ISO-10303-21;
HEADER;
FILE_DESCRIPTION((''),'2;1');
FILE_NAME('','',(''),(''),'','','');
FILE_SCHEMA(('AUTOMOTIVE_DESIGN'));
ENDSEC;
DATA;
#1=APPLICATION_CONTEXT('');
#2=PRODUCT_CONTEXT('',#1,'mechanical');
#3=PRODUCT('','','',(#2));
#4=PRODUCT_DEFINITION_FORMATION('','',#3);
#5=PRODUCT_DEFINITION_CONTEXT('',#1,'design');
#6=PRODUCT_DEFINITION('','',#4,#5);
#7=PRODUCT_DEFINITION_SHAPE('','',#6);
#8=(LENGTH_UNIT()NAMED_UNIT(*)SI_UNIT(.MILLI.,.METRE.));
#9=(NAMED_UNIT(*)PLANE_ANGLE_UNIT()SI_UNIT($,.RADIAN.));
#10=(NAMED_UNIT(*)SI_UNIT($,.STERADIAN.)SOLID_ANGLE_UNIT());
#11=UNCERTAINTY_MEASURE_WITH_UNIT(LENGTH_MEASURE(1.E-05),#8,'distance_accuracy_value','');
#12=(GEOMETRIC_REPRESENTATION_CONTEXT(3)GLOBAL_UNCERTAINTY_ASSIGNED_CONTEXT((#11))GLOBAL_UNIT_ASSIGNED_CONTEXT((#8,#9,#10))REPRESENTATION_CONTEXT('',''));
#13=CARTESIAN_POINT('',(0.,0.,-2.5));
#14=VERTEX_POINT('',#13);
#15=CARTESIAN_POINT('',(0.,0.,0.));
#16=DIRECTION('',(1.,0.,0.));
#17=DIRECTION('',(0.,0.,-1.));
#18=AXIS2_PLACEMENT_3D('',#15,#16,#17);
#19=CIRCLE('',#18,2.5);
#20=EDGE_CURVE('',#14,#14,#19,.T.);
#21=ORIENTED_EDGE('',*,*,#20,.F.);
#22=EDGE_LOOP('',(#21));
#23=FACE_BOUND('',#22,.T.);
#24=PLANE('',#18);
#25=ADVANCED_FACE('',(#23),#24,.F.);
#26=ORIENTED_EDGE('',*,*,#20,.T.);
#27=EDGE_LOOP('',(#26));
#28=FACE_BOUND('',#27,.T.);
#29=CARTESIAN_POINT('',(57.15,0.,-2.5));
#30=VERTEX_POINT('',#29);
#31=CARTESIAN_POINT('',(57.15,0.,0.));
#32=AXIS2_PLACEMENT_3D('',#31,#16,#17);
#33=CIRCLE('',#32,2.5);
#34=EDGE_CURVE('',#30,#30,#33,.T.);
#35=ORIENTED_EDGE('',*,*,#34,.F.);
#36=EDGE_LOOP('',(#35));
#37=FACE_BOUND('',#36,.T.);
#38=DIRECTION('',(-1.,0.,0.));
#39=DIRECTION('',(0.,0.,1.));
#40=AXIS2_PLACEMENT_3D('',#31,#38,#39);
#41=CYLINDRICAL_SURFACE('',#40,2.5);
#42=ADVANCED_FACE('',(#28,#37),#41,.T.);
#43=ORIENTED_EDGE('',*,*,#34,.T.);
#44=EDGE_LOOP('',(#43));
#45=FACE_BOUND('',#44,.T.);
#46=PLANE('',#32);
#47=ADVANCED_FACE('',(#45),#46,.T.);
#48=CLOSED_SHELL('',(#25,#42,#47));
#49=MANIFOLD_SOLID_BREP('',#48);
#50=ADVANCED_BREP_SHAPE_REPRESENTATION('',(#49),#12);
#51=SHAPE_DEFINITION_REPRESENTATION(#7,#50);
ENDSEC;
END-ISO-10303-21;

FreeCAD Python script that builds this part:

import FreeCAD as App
import Part
import Sketcher
Q = App.Units.Quantity

doc = App.newDocument("Part")
body = doc.addObject("PartDesign::Body", "Body")

# Sketch on YZ plane
sketch1 = body.newObject("Sketcher::SketchObject", "Sketch")
sketch1.AttachmentSupport = (doc.getObject("YZ_Plane"), [""])
sketch1.MapMode = "FlatFace"
sketch1.addGeometry(Part.Circle(App.Vector(0, 0, 0), App.Vector(0, 0, 1), 2.5), False)
sketch1.addConstraint(Sketcher.Constraint("Coincident", 0, 3, -1, 1))
sketch1.addConstraint(Sketcher.Constraint("Diameter", 0, Q("5 mm")))
pad1 = body.newObject("PartDesign::Pad", "Pad")
pad1.Profile = sketch1
pad1.Length = 57.15

doc.recompute()
